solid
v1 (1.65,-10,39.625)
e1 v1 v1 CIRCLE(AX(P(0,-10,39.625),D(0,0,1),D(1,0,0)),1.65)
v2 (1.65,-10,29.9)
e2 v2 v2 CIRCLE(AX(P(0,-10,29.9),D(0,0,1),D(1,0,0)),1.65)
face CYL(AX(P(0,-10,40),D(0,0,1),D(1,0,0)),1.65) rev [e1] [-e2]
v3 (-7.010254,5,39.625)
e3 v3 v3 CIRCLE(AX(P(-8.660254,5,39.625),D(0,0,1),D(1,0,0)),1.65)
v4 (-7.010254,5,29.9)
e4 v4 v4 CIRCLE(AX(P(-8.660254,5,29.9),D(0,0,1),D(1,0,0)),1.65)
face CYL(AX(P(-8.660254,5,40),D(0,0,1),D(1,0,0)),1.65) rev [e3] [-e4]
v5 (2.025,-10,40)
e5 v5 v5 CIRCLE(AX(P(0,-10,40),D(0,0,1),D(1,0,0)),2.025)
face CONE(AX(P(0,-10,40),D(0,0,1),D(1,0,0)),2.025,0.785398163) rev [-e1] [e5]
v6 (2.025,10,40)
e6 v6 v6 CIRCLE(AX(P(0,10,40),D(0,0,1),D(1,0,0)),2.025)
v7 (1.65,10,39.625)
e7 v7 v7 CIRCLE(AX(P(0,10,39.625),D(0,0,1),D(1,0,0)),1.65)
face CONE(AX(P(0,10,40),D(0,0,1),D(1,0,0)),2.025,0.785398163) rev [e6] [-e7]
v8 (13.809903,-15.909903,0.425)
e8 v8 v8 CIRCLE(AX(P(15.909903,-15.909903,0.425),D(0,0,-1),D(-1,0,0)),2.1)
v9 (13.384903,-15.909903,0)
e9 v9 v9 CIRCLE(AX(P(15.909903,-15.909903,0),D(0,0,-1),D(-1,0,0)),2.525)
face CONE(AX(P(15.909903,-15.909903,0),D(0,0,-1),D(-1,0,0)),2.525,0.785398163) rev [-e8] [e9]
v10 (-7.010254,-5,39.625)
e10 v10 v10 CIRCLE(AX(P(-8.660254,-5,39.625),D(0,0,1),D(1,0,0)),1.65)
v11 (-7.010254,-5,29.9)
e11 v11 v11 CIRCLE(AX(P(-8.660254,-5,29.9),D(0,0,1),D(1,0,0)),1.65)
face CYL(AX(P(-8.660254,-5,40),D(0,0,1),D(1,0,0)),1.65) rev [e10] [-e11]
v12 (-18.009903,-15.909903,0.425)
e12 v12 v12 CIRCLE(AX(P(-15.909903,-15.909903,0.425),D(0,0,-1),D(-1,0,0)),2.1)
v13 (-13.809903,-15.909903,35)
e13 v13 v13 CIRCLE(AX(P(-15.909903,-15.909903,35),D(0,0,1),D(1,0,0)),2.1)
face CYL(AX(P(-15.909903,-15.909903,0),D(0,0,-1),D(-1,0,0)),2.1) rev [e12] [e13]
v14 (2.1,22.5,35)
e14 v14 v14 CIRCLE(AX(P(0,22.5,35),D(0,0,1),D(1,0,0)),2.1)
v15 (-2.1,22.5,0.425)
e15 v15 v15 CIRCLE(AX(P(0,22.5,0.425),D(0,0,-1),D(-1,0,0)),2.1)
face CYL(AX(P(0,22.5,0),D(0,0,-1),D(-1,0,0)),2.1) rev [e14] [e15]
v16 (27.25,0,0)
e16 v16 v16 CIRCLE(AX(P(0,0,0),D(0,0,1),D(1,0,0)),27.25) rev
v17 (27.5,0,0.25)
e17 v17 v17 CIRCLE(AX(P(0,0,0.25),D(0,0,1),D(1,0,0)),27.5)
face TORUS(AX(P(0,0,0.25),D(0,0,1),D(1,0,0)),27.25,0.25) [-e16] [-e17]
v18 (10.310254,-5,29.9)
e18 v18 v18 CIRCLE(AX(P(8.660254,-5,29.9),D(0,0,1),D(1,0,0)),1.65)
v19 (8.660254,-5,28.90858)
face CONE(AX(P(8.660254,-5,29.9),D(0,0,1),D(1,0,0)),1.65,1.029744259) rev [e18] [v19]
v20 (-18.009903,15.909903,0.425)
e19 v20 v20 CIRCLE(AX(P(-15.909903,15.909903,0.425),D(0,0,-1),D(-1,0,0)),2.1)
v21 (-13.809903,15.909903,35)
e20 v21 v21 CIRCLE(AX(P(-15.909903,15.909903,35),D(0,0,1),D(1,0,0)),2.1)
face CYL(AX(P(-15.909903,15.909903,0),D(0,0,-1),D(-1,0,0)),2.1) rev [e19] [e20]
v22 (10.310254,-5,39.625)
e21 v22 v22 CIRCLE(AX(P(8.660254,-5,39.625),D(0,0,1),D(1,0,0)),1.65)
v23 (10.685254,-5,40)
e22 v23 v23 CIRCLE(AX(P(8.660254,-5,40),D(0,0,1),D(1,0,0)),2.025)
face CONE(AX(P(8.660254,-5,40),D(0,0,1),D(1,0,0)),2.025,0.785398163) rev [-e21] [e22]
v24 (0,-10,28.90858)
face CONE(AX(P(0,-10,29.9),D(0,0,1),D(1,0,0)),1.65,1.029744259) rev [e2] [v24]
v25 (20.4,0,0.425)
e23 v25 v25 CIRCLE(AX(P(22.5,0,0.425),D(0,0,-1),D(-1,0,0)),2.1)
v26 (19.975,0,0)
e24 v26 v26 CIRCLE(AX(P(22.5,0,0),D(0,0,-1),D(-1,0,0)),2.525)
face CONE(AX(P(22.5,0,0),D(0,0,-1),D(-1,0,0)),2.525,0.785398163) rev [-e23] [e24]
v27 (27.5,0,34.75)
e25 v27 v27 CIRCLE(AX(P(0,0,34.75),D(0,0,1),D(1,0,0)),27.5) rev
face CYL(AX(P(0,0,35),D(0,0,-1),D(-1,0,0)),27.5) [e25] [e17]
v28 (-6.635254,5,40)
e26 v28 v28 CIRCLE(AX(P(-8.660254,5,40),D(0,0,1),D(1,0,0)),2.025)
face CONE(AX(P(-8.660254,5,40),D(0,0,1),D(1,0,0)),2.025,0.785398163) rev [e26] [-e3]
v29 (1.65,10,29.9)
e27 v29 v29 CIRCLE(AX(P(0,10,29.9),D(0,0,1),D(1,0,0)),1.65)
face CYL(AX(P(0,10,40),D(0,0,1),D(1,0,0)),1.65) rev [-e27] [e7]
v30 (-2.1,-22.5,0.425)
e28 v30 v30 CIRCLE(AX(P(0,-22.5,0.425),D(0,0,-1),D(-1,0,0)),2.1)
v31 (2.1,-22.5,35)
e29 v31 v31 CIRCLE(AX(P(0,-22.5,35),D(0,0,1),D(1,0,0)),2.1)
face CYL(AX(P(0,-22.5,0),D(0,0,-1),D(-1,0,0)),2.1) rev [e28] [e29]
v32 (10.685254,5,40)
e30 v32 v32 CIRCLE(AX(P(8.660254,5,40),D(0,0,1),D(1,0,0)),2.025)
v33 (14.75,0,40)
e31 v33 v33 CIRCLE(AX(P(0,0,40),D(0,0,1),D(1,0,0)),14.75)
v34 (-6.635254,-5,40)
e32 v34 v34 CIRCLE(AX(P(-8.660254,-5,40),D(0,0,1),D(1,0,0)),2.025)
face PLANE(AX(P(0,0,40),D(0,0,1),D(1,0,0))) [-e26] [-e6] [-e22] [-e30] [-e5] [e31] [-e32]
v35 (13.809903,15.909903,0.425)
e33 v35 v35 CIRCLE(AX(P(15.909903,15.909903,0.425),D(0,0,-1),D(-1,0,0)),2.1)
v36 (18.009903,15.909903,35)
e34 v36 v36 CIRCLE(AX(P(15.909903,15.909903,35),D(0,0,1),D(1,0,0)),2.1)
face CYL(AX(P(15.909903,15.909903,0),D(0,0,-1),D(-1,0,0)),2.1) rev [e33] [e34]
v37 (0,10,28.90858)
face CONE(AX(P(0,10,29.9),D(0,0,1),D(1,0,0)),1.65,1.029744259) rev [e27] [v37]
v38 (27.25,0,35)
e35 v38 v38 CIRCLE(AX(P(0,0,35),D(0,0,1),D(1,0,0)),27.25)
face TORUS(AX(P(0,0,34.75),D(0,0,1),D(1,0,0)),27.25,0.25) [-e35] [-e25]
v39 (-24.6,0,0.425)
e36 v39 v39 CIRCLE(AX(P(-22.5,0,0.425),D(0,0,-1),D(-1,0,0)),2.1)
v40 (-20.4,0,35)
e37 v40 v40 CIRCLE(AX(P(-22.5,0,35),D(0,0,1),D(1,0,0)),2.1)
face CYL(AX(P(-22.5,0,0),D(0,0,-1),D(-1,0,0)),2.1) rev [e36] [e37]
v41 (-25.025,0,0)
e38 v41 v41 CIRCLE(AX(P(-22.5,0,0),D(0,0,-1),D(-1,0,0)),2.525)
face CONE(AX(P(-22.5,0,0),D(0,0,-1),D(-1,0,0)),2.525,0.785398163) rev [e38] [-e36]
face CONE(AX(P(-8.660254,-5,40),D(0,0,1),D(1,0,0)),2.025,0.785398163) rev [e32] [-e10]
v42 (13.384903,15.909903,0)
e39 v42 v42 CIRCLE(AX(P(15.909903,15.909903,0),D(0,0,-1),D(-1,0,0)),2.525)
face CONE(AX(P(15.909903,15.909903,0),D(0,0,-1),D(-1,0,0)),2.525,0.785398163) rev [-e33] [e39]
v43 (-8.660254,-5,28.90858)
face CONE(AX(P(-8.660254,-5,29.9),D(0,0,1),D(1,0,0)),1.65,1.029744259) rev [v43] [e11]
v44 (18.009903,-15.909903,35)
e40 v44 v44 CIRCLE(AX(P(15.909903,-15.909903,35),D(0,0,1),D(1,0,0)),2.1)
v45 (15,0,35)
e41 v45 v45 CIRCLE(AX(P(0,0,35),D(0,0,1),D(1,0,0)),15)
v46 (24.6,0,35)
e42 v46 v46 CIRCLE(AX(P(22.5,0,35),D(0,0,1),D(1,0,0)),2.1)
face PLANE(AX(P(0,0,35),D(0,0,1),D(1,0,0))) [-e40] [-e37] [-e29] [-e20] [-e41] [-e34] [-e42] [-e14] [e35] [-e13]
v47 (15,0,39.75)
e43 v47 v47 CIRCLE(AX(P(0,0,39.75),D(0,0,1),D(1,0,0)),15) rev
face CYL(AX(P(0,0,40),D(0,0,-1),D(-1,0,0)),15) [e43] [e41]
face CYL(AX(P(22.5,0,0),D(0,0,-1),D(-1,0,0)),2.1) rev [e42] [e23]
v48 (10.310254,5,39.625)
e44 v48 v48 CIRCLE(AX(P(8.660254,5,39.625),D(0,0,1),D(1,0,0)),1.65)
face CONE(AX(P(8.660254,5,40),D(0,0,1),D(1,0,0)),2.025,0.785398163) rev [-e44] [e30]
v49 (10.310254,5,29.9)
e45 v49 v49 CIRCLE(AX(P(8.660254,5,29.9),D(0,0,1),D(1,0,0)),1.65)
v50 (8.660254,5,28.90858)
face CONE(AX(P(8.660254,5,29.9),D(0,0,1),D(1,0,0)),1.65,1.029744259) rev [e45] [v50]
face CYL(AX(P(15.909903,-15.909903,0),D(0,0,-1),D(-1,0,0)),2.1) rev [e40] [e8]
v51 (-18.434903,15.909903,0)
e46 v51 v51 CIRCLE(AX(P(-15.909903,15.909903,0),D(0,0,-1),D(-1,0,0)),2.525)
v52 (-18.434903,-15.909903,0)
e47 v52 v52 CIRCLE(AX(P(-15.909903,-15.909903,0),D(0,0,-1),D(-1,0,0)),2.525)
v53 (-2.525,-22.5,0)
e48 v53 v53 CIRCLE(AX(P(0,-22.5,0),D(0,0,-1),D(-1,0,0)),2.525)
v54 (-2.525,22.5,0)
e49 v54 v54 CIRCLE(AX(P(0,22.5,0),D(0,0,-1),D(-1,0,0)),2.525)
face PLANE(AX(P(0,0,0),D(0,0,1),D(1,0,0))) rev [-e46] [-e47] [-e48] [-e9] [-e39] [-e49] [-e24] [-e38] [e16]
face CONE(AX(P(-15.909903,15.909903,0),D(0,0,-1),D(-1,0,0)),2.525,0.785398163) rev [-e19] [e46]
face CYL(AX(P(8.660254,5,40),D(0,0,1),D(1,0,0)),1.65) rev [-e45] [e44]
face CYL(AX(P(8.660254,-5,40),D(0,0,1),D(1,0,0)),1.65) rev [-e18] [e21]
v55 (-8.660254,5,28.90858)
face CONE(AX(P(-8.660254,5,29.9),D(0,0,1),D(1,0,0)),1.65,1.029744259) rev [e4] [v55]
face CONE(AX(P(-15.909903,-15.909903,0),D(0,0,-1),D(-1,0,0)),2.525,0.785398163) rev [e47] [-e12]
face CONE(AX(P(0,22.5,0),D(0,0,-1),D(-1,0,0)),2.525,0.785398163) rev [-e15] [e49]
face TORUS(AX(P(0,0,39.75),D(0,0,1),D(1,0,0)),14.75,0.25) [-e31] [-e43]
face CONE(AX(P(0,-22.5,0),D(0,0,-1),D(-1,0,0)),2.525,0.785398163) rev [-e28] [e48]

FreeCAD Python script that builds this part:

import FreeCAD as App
import Part
import Sketcher
from FreeCAD import Vector
Q = App.Units.Quantity


def edges_at(feature, points):
    """Names of the edges that pass closest to the given points."""
    edges = feature.Shape.Edges
    near = lambda p: min(range(len(edges)), key=lambda i: edges[i].distToShape(Part.Vertex(*p))[0])
    return sorted({f"Edge{near(p) + 1}" for p in points})

doc = App.newDocument("Part")
body = doc.addObject("PartDesign::Body", "Body")

# Sketch on XY plane
sketch1 = body.newObject("Sketcher::SketchObject", "Sketch")
sketch1.AttachmentSupport = (doc.getObject("XY_Plane"), [""])
sketch1.MapMode = "FlatFace"
sketch1.addGeometry(Part.Circle(Vector(0, 0, 0), Vector(0, 0, 1), 27.5), False)
sketch1.addConstraint(Sketcher.Constraint("Coincident", 0, 3, -1, 1))
sketch1.addConstraint(Sketcher.Constraint("Diameter", 0, Q("55 mm")))
pad1 = body.newObject("PartDesign::Pad", "Pad")
pad1.Profile = sketch1
pad1.Length = 35

# Sketch on XY plane
sketch2 = body.newObject("Sketcher::SketchObject", "Sketch001")
sketch2.AttachmentSupport = (doc.getObject("XY_Plane"), [""])
sketch2.MapMode = "FlatFace"
sketch2.AttachmentOffset = App.Placement(Vector(0, 0, 35), App.Rotation())
sketch2.addGeometry(Part.Circle(Vector(0, 0, 0), Vector(0, 0, 1), 15), False)
sketch2.addConstraint(Sketcher.Constraint("Coincident", 0, 3, -1, 1))
sketch2.addConstraint(Sketcher.Constraint("Diameter", 0, Q("30 mm")))
pad2 = body.newObject("PartDesign::Pad", "Pad001")
pad2.Profile = sketch2
pad2.Length = 5

# Sketch on XY plane
sketch3 = body.newObject("Sketcher::SketchObject", "Sketch002")
sketch3.AttachmentSupport = (doc.getObject("XY_Plane"), [""])
sketch3.MapMode = "FlatFace"
sketch3.addGeometry(Part.Circle(Vector(0, 22.5, 0), Vector(0, 0, 1), 2.1), False)
sketch3.addGeometry(Part.Circle(Vector(-15.909903, 15.909903, 0), Vector(0, 0, 1), 2.1), False)
sketch3.addGeometry(Part.Circle(Vector(-22.5, 0, 0), Vector(0, 0, 1), 2.1), False)
sketch3.addGeometry(Part.Circle(Vector(-15.909903, -15.909903, 0), Vector(0, 0, 1), 2.1), False)
sketch3.addGeometry(Part.Circle(Vector(0, -22.5, 0), Vector(0, 0, 1), 2.1), False)
sketch3.addGeometry(Part.Circle(Vector(15.909903, -15.909903, 0), Vector(0, 0, 1), 2.1), False)
sketch3.addGeometry(Part.Circle(Vector(22.5, 0, 0), Vector(0, 0, 1), 2.1), False)
sketch3.addGeometry(Part.Circle(Vector(15.909903, 15.909903, 0), Vector(0, 0, 1), 2.1), False)
sketch3.addConstraint(Sketcher.Constraint("Equal", 0, 1))
sketch3.addConstraint(Sketcher.Constraint("Equal", 1, 2))
sketch3.addConstraint(Sketcher.Constraint("Equal", 2, 3))
sketch3.addConstraint(Sketcher.Constraint("Equal", 3, 4))
sketch3.addConstraint(Sketcher.Constraint("Equal", 4, 5))
sketch3.addConstraint(Sketcher.Constraint("Equal", 5, 6))
sketch3.addConstraint(Sketcher.Constraint("Equal", 6, 7))
sketch3.addConstraint(Sketcher.Constraint("Symmetric", 0, 3, 4, 3, -1, 1))
sketch3.addConstraint(Sketcher.Constraint("Symmetric", 1, 3, 5, 3, -1, 1))
sketch3.addConstraint(Sketcher.Constraint("Symmetric", 2, 3, 6, 3, -1, 1))
sketch3.addConstraint(Sketcher.Constraint("Symmetric", 3, 3, 7, 3, -1, 1))
sketch3.addConstraint(Sketcher.Constraint("Symmetric", 3, 3, 5, 3, -2))
sketch3.addConstraint(Sketcher.Constraint("PointOnObject", 0, 3, -2))
sketch3.addConstraint(Sketcher.Constraint("PointOnObject", 2, 3, -1))
sketch3.addConstraint(Sketcher.Constraint("Diameter", 0, Q("4.2 mm")))
sketch3.addConstraint(Sketcher.Constraint("DistanceY", 4, 3, 0, 3, Q("45 mm")))
sketch3.addConstraint(Sketcher.Constraint("DistanceX", 2, 3, -1, 1, Q("22.5 mm")))
sketch3.addConstraint(Sketcher.Constraint("DistanceX", 1, 3, -1, 1, Q("15.909903 mm")))
sketch3.addConstraint(Sketcher.Constraint("DistanceY", -1, 1, 1, 3, Q("15.909903 mm")))
doc.recompute()
hole = body.newObject("PartDesign::Hole", "Hole")
hole.Profile = sketch3
hole.ThreadType = "None"
hole.Diameter = 4.2
hole.DepthType = "ThroughAll"
hole.HoleCutType = "Countersink"
hole.HoleCutDiameter = 5.05
hole.HoleCutCountersinkAngle = 90
hole.Reversed = True

# Sketch on XY plane
sketch4 = body.newObject("Sketcher::SketchObject", "Sketch003")
sketch4.AttachmentSupport = (doc.getObject("XY_Plane"), [""])
sketch4.MapMode = "FlatFace"
sketch4.AttachmentOffset = App.Placement(Vector(0, 0, 40), App.Rotation())
sketch4.addGeometry(Part.Circle(Vector(0, 10, 0), Vector(0, 0, 1), 1.65), False)
sketch4.addGeometry(Part.Circle(Vector(8.660254, 5, 0), Vector(0, 0, 1), 1.65), False)
sketch4.addGeometry(Part.Circle(Vector(8.660254, -5, 0), Vector(0, 0, 1), 1.65), False)
sketch4.addGeometry(Part.Circle(Vector(0, -10, 0), Vector(0, 0, 1), 1.65), False)
sketch4.addGeometry(Part.Circle(Vector(-8.660254, -5, 0), Vector(0, 0, 1), 1.65), False)
sketch4.addGeometry(Part.Circle(Vector(-8.660254, 5, 0), Vector(0, 0, 1), 1.65), False)
sketch4.addConstraint(Sketcher.Constraint("Equal", 0, 1))
sketch4.addConstraint(Sketcher.Constraint("Equal", 1, 2))
sketch4.addConstraint(Sketcher.Constraint("Equal", 2, 3))
sketch4.addConstraint(Sketcher.Constraint("Equal", 3, 4))
sketch4.addConstraint(Sketcher.Constraint("Equal", 4, 5))
sketch4.addConstraint(Sketcher.Constraint("Symmetric", 0, 3, 3, 3, -1, 1))
sketch4.addConstraint(Sketcher.Constraint("Symmetric", 1, 3, 4, 3, -1, 1))
sketch4.addConstraint(Sketcher.Constraint("Symmetric", 2, 3, 5, 3, -1, 1))
sketch4.addConstraint(Sketcher.Constraint("Symmetric", 2, 3, 4, 3, -2))
sketch4.addConstraint(Sketcher.Constraint("PointOnObject", 0, 3, -2))
sketch4.addConstraint(Sketcher.Constraint("Diameter", 0, Q("3.3 mm")))
sketch4.addConstraint(Sketcher.Constraint("DistanceY", -1, 1, 0, 3, Q("10 mm")))
sketch4.addConstraint(Sketcher.Constraint("DistanceY", -1, 1, 1, 3, Q("5 mm")))
sketch4.addConstraint(Sketcher.Constraint("DistanceX", 4, 3, 2, 3, Q("17.320508 mm")))
doc.recompute()
hole2 = body.newObject("PartDesign::Hole", "Hole001")
hole2.Profile = sketch4
hole2.ThreadType = "None"
hole2.Diameter = 3.3
hole2.DepthType = "Dimension"
hole2.Depth = 10.1
hole2.DrillPoint = "Angled"
hole2.DrillPointAngle = 118
hole2.HoleCutType = "Countersink"
hole2.HoleCutDiameter = 4.05
hole2.HoleCutCountersinkAngle = 90
doc.recompute()

fillet = body.newObject("PartDesign::Fillet", "Fillet")
fillet.Base = (hole2, edges_at(hole2, [(-27.5, 0, 0), (-27.5, 0, 35), (-15, 0, 40)]))
fillet.Radius = 0.25

doc.recompute()
